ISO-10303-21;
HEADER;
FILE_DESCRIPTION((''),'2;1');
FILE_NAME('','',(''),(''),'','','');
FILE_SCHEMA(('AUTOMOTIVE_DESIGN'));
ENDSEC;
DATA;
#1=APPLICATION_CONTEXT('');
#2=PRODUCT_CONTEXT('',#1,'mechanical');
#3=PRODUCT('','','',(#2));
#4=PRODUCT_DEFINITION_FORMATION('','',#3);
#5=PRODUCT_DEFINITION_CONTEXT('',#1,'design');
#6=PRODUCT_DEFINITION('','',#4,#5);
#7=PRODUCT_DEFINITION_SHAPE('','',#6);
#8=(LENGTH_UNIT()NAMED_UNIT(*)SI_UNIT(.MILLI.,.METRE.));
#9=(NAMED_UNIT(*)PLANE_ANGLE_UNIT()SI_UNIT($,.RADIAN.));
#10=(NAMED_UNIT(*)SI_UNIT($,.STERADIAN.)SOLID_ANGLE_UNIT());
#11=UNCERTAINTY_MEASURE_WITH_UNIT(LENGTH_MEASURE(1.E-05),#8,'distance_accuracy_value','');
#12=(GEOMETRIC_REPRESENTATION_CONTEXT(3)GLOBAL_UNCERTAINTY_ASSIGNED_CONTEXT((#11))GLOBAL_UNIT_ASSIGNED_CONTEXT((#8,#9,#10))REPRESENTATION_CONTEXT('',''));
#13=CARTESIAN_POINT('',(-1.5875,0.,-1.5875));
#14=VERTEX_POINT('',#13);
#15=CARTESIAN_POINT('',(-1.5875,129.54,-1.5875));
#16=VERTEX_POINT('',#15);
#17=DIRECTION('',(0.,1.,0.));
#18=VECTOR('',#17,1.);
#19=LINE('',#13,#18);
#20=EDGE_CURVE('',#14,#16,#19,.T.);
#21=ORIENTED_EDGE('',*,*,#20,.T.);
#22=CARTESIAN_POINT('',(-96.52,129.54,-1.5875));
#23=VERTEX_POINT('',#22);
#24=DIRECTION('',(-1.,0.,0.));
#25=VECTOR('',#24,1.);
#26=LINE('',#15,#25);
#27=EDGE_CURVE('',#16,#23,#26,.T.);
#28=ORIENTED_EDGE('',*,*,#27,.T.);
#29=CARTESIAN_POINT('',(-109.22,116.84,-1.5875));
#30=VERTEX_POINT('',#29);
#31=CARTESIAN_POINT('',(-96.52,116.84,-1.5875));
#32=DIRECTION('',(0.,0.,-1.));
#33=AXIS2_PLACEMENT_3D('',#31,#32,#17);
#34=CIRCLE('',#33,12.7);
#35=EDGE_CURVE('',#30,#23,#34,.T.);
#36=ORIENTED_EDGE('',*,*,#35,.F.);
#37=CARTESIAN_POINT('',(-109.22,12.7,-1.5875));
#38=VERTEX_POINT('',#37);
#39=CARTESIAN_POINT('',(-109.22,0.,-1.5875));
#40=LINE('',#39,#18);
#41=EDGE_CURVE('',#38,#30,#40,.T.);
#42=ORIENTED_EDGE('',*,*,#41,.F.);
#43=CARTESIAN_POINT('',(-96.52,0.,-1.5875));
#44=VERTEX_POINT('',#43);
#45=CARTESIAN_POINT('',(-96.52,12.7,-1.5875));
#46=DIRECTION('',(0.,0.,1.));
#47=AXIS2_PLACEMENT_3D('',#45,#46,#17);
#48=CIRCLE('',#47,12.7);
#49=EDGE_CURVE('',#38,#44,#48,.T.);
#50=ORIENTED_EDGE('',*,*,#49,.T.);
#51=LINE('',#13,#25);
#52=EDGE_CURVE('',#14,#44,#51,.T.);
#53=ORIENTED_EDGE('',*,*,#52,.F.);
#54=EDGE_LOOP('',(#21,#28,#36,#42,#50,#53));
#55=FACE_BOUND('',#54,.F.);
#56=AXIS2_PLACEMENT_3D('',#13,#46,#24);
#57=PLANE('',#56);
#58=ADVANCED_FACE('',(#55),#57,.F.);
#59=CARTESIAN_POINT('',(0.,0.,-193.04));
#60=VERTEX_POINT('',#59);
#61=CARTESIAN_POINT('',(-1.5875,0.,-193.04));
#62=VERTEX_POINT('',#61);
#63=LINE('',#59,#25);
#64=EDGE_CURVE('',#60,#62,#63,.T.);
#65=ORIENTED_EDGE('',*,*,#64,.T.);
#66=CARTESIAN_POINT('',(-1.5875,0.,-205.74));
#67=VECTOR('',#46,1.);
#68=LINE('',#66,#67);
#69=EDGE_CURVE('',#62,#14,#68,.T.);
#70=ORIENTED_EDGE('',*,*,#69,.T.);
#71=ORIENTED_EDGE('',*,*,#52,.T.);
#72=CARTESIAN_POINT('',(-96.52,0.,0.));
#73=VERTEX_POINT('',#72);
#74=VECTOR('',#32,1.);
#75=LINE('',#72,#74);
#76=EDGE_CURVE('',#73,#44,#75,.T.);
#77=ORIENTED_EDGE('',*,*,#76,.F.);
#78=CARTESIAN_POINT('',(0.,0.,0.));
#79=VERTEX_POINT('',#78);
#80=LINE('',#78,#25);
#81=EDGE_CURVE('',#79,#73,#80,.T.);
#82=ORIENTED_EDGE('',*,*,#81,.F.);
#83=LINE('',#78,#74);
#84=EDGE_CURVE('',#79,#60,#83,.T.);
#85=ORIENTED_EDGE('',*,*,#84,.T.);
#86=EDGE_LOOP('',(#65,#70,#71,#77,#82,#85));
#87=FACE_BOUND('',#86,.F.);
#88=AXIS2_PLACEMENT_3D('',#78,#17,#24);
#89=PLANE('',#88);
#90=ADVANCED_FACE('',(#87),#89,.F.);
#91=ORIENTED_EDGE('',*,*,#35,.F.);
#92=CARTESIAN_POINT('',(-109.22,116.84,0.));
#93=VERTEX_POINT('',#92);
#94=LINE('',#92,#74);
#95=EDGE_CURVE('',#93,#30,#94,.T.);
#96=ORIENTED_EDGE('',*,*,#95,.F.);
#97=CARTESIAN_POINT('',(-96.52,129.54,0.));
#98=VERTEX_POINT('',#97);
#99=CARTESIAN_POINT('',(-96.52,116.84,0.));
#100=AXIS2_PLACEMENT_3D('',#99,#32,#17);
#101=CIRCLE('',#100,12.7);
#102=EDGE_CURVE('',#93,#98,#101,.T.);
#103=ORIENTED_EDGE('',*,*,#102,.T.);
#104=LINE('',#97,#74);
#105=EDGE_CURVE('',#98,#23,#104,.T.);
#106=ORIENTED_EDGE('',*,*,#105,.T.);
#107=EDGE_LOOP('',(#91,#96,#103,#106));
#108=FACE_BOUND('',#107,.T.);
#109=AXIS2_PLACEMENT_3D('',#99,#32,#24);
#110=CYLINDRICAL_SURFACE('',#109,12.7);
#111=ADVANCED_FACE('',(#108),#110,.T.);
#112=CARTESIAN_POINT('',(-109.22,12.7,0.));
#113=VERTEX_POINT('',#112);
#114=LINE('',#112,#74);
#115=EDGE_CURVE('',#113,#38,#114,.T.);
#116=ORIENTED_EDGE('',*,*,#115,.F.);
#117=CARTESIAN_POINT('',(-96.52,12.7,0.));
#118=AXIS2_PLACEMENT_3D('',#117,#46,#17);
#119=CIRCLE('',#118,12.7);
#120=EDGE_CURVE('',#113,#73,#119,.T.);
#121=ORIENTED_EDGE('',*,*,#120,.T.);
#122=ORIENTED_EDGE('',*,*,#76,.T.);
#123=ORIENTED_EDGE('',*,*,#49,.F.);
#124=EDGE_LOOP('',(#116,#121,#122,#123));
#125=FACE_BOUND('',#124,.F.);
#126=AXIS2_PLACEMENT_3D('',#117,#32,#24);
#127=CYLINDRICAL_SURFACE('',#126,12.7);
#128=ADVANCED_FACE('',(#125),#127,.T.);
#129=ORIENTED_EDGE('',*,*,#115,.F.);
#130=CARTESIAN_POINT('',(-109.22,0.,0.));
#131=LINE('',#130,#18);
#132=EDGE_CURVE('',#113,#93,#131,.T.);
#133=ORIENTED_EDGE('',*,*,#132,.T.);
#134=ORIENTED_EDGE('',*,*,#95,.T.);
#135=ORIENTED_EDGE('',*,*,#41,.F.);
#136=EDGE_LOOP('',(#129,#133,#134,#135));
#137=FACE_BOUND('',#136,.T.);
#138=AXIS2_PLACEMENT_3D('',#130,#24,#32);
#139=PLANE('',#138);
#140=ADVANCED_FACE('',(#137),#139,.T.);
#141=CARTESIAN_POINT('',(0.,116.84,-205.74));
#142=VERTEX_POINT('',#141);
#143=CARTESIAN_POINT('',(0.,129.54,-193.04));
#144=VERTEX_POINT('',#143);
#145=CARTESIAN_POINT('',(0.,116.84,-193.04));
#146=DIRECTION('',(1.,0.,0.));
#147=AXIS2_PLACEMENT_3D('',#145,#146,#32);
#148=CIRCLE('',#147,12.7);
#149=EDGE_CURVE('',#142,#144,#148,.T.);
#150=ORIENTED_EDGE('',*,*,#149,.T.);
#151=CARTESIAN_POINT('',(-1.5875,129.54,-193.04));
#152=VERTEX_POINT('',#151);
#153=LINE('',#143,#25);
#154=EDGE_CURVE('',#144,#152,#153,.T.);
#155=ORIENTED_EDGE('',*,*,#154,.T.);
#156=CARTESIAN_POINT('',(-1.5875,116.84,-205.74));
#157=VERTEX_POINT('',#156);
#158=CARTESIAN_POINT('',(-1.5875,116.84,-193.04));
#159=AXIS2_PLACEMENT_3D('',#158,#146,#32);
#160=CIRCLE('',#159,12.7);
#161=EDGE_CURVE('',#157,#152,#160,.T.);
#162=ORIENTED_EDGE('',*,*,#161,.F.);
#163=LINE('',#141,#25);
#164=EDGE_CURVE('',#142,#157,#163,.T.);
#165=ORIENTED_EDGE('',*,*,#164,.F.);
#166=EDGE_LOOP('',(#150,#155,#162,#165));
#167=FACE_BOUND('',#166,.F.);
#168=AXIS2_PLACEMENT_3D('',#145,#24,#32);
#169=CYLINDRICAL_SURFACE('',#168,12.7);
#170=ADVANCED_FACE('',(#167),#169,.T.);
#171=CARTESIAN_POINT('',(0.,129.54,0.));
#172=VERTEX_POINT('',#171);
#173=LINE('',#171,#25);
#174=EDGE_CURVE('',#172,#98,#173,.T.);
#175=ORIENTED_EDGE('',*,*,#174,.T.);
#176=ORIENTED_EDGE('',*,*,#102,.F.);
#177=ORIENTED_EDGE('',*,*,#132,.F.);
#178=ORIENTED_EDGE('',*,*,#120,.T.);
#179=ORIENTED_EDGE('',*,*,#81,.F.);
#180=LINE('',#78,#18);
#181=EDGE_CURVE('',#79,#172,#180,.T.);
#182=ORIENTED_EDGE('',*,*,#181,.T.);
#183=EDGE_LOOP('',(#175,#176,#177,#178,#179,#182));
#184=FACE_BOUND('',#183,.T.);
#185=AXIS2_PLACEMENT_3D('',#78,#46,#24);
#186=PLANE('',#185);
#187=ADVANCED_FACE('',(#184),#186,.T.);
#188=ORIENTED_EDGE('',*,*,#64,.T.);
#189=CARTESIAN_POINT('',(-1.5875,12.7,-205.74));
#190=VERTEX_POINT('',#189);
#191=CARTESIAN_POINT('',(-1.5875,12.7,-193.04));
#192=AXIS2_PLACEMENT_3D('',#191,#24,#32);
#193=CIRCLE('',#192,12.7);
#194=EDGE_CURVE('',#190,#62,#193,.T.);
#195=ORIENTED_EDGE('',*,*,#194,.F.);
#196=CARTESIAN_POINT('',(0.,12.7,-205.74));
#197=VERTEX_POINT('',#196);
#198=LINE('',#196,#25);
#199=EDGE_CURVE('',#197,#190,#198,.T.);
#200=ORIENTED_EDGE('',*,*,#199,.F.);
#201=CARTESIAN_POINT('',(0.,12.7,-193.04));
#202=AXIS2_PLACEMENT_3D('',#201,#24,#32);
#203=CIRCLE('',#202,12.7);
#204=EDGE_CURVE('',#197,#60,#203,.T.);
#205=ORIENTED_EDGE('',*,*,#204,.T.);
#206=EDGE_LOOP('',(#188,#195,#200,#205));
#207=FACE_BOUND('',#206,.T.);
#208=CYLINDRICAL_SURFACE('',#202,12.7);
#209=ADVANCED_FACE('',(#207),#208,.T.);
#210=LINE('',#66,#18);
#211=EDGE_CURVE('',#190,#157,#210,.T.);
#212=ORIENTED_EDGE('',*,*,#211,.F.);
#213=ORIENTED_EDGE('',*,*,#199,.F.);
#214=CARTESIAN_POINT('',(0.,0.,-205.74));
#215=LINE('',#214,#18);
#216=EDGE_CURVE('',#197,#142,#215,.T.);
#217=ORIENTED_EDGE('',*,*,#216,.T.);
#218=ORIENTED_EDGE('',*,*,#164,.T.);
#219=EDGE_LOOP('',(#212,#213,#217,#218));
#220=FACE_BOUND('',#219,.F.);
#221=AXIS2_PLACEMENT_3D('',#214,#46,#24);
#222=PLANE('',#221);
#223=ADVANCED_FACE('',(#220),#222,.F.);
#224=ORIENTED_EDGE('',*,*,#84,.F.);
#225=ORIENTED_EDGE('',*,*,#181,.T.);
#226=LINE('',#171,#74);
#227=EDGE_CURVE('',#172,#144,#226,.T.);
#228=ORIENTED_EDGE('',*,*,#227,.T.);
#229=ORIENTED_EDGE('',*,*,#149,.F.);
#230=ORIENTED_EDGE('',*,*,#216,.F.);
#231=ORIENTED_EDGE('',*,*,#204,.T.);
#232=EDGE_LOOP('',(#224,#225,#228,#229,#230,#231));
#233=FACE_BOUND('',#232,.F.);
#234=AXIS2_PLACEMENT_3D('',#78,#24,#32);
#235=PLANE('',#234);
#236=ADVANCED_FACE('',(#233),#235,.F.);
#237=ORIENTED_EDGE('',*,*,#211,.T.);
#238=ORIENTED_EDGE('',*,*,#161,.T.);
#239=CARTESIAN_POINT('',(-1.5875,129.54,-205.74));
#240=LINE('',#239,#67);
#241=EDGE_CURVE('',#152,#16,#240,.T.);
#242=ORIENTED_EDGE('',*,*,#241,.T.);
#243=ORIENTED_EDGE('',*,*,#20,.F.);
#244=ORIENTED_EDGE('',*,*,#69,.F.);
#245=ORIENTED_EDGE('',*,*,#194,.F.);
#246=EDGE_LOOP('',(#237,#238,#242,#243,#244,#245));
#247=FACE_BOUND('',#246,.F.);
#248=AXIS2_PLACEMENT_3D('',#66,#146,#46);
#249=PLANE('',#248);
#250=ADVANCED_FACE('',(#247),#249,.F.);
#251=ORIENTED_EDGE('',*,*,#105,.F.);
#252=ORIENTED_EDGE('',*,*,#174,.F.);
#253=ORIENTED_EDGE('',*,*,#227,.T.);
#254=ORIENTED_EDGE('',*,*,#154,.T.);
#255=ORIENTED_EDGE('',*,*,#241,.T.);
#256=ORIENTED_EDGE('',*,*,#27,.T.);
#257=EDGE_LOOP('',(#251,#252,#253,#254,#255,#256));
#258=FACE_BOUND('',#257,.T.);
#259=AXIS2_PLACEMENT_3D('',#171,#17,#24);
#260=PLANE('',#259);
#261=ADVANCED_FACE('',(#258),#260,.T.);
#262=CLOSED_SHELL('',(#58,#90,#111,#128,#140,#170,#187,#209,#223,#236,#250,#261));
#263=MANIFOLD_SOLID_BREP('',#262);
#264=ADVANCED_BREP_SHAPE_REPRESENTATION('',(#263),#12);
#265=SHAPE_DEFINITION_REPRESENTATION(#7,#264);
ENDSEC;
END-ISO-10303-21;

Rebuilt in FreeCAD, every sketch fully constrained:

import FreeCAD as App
import Part
import Sketcher
Q = App.Units.Quantity


def edges_at(feature, points):
    """Names of the edges that pass closest to the given points."""
    edges = feature.Shape.Edges
    near = lambda p: min(range(len(edges)), key=lambda i: edges[i].distToShape(Part.Vertex(*p))[0])
    return sorted({f"Edge{near(p) + 1}" for p in points})

doc = App.newDocument("Part")
params = doc.addObject("Spreadsheet::Sheet", "Params")
for row, (alias, value) in enumerate([
    ("sketch1_width", "4.3 in"),
    ("sketch1_height", "8.1 in"),
    ("sketch1_width2", "0.0625 in"),
    ("pad1_length", "5.1 in"),
    ("fillet_radius", "0.5 in"),
], start=1):
    params.set(f"A{row}", alias)
    params.set(f"B{row}", "=" + value)
    params.setAlias(f"B{row}", alias)

body = doc.addObject("PartDesign::Body", "Body")

# Sketch on XZ plane
sketch1 = doc.addObject("Sketcher::SketchObject", "Sketch")
body.addObject(sketch1)
sketch1.AttachmentSupport = (doc.XZ_Plane, [""])
sketch1.MapMode = "FlatFace"
sketch1.addGeometry(Part.LineSegment(App.Vector(-109.2, 0, 0), App.Vector(0, 0, 0)), False)
sketch1.addGeometry(Part.LineSegment(App.Vector(0, 0, 0), App.Vector(0, -205.7, 0)), False)
sketch1.addGeometry(Part.LineSegment(App.Vector(0, -205.7, 0), App.Vector(-1.6, -205.7, 0)), False)
sketch1.addGeometry(Part.LineSegment(App.Vector(-1.6, -205.7, 0), App.Vector(-1.6, -1.6, 0)), False)
sketch1.addGeometry(Part.LineSegment(App.Vector(-1.6, -1.6, 0), App.Vector(-109.2, -1.6, 0)), False)
sketch1.addGeometry(Part.LineSegment(App.Vector(-109.2, -1.6, 0), App.Vector(-109.2, 0, 0)), False)
sketch1.addConstraint(Sketcher.Constraint("Coincident", 0, 2, 1, 1))
sketch1.addConstraint(Sketcher.Constraint("Coincident", 1, 2, 2, 1))
sketch1.addConstraint(Sketcher.Constraint("Coincident", 2, 2, 3, 1))
sketch1.addConstraint(Sketcher.Constraint("Coincident", 3, 2, 4, 1))
sketch1.addConstraint(Sketcher.Constraint("Coincident", 4, 2, 5, 1))
sketch1.addConstraint(Sketcher.Constraint("Coincident", 5, 2, 0, 1))
sketch1.addConstraint(Sketcher.Constraint("Horizontal", 0))
sketch1.addConstraint(Sketcher.Constraint("Vertical", 1))
sketch1.addConstraint(Sketcher.Constraint("Horizontal", 2))
sketch1.addConstraint(Sketcher.Constraint("Vertical", 3))
sketch1.addConstraint(Sketcher.Constraint("Horizontal", 4))
sketch1.addConstraint(Sketcher.Constraint("Vertical", 5))
sketch1.addConstraint(Sketcher.Constraint("Coincident", 0, 2, -1, 1))
sketch1.addConstraint(Sketcher.Constraint("Equal", 2, 5))
sketch1.addConstraint(Sketcher.Constraint("DistanceX", 0, 1, 0, 2, Q("4.3 in")))
sketch1.addConstraint(Sketcher.Constraint("DistanceY", 1, 2, 1, 1, Q("8.1 in")))
sketch1.addConstraint(Sketcher.Constraint("DistanceX", 2, 2, 2, 1, Q("0.0625 in")))
sketch1.setExpression("Constraints[14]", "Params.sketch1_width")
sketch1.setExpression("Constraints[15]", "Params.sketch1_height")
sketch1.setExpression("Constraints[16]", "Params.sketch1_width2")
pad1 = doc.addObject("PartDesign::Pad", "Pad")
body.addObject(pad1)
pad1.Profile = sketch1
pad1.setExpression("Length", "Params.pad1_length")
pad1.Reversed = True
doc.recompute()

fillet = doc.addObject("PartDesign::Fillet", "Fillet")
body.addObject(fillet)
fillet.Base = (pad1, edges_at(pad1, [
    (-0.794, 129.54, -205.74),
    (-0.794, 0, -205.74),
    (-109.22, 129.54, -0.794),
    (-109.22, 0, -0.794),
]))
fillet.setExpression("Radius", "Params.fillet_radius")

doc.recompute()
